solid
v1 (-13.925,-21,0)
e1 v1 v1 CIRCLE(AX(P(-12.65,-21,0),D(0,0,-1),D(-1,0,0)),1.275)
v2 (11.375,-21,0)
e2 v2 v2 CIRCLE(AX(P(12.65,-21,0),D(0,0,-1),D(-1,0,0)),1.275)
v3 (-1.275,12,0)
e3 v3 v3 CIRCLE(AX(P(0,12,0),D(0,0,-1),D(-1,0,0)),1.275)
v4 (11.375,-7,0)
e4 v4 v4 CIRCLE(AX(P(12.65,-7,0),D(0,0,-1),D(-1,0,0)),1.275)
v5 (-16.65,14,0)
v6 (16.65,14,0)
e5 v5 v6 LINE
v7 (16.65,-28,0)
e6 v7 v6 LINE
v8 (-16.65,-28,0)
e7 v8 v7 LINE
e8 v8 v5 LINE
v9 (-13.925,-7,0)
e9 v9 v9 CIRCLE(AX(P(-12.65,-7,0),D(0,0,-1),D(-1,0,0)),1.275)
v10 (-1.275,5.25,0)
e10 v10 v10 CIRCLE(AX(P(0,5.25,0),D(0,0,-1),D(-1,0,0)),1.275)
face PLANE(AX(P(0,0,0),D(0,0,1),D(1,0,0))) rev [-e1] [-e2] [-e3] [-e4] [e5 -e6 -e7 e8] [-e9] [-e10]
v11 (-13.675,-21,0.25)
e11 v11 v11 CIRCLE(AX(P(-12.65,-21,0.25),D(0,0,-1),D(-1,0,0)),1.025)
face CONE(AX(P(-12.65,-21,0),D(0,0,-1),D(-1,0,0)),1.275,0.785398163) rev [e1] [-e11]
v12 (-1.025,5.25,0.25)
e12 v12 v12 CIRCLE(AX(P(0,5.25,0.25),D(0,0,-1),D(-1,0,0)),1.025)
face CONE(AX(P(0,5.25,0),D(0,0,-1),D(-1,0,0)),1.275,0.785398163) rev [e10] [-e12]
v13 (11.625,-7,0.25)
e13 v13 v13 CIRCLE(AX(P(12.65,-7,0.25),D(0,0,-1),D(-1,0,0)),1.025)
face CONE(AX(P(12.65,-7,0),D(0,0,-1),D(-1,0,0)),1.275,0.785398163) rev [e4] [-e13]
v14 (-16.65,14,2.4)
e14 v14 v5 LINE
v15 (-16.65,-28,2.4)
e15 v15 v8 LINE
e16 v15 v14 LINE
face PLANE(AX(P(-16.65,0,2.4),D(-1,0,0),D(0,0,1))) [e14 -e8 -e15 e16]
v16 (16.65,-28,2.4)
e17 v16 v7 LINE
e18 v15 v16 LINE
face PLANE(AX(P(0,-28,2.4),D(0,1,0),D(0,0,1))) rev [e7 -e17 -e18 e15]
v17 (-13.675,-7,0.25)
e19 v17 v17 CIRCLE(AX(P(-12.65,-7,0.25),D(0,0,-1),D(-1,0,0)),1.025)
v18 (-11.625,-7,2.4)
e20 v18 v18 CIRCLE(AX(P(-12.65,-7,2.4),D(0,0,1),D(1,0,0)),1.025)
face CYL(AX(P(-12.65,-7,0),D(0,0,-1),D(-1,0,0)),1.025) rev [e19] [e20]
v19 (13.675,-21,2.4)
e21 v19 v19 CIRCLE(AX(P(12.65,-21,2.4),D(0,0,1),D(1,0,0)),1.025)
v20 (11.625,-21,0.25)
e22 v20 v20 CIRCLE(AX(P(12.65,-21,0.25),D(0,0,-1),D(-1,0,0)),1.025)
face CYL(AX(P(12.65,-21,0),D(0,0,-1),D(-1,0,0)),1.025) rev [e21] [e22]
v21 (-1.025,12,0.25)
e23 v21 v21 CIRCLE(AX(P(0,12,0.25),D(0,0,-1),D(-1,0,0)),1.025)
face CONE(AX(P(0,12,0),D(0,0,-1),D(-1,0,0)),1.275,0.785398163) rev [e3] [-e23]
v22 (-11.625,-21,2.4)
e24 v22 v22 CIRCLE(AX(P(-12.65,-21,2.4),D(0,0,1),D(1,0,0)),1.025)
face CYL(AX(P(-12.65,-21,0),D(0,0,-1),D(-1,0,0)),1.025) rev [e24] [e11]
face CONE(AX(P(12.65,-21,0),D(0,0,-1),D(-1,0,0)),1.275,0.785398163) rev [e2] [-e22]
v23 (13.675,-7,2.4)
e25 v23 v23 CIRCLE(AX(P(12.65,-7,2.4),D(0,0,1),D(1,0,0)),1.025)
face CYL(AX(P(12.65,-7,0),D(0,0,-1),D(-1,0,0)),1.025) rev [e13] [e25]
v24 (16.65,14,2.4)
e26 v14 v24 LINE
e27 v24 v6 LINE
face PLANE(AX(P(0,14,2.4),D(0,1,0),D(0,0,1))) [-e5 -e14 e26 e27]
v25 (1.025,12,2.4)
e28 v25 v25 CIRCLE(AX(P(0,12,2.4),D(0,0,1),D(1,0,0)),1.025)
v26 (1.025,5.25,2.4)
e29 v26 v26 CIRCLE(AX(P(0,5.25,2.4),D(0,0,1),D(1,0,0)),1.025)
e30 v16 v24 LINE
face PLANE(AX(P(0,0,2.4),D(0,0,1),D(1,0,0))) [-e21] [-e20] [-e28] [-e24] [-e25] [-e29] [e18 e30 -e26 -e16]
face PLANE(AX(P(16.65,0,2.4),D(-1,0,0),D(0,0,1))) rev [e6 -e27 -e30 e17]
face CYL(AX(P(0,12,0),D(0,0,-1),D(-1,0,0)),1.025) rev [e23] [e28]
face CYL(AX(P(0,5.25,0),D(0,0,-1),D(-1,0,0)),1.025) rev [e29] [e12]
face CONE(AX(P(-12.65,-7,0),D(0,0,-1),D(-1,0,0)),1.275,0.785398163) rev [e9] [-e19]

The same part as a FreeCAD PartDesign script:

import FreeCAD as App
import Part
import Sketcher

V = App.Vector
Q = App.Units.Quantity

doc = App.newDocument("Part")
body = doc.addObject("PartDesign::Body", "Body")

sketch1 = body.newObject("Sketcher::SketchObject", "Sketch")
sketch1.AttachmentSupport = (doc.getObject("XY_Plane"), [""])
sketch1.MapMode = "FlatFace"
sketch1.addGeometry([
    Part.LineSegment(V(-17, 14, 0), V(-17, -28, 0)),
    Part.LineSegment(V(-17, -28, 0), V(17, -28, 0)),
    Part.LineSegment(V(17, -28, 0), V(17, 14, 0)),
    Part.LineSegment(V(17, 14, 0), V(-17, 14, 0)),
], False)
sketch1.addConstraint([
    Sketcher.Constraint("Coincident", 0, 2, 1, 1),
    Sketcher.Constraint("Coincident", 1, 2, 2, 1),
    Sketcher.Constraint("Coincident", 2, 2, 3, 1),
    Sketcher.Constraint("Coincident", 3, 2, 0, 1),
    Sketcher.Constraint("Vertical", 0),
    Sketcher.Constraint("Horizontal", 1),
    Sketcher.Constraint("Vertical", 2),
    Sketcher.Constraint("Horizontal", 3),
    Sketcher.Constraint("DistanceY", 0, 2, 0, 1, Q("42 mm")),
    Sketcher.Constraint("DistanceX", 1, 1, 1, 2, Q("33.3 mm")),
    Sketcher.Constraint("DistanceY", 0, 2, -1, 1, Q("28 mm")),
    Sketcher.Constraint("DistanceX", 0, 2, -1, 1, Q("16.65 mm")),
])
pad1 = body.newObject("PartDesign::Pad", "Pad")
pad1.Profile = sketch1
pad1.Length = 2.4

sketch2 = body.newObject("Sketcher::SketchObject", "Sketch001")
sketch2.AttachmentSupport = (doc.getObject("XY_Plane"), [""])
sketch2.MapMode = "FlatFace"
sketch2.addGeometry([
    Part.Circle(V(0, 12, 0), V(0, 0, 1), 1),
    Part.Circle(V(0, 5.2, 0), V(0, 0, 1), 1),
    Part.Circle(V(-12.7, -7, 0), V(0, 0, 1), 1),
    Part.Circle(V(-12.7, -21, 0), V(0, 0, 1), 1),
    Part.Circle(V(12.7, -21, 0), V(0, 0, 1), 1),
    Part.Circle(V(12.7, -7, 0), V(0, 0, 1), 1),
], False)
sketch2.addConstraint([
    Sketcher.Constraint("Equal", 0, 1),
    Sketcher.Constraint("Equal", 1, 2),
    Sketcher.Constraint("Equal", 2, 3),
    Sketcher.Constraint("Equal", 3, 4),
    Sketcher.Constraint("Equal", 4, 5),
    Sketcher.Constraint("Symmetric", 3, 3, 4, 3, -2),
    Sketcher.Constraint("Symmetric", 2, 3, 5, 3, -2),
    Sketcher.Constraint("PointOnObject", 0, 3, -2),
    Sketcher.Constraint("PointOnObject", 1, 3, -2),
    Sketcher.Constraint("Vertical", 2, 3, 3, 3),
    Sketcher.Constraint("Diameter", 0, Q("2.05 mm")),
    Sketcher.Constraint("DistanceY", -1, 1, 0, 3, Q("12 mm")),
    Sketcher.Constraint("DistanceY", 2, 3, -1, 1, Q("7 mm")),
    Sketcher.Constraint("DistanceY", 3, 3, -1, 1, Q("21 mm")),
    Sketcher.Constraint("DistanceX", 3, 3, 4, 3, Q("25.3 mm")),
    Sketcher.Constraint("DistanceY", -1, 1, 1, 3, Q("5.25 mm")),
])
doc.recompute()
hole = body.newObject("PartDesign::Hole", "Hole")
hole.Profile = sketch2
hole.ThreadType = "None"
hole.Diameter = 2.05
hole.DepthType = "ThroughAll"
hole.HoleCutType = "Countersink"
hole.HoleCutDiameter = 2.55
hole.HoleCutCountersinkAngle = 90
hole.Reversed = True

doc.recompute()
